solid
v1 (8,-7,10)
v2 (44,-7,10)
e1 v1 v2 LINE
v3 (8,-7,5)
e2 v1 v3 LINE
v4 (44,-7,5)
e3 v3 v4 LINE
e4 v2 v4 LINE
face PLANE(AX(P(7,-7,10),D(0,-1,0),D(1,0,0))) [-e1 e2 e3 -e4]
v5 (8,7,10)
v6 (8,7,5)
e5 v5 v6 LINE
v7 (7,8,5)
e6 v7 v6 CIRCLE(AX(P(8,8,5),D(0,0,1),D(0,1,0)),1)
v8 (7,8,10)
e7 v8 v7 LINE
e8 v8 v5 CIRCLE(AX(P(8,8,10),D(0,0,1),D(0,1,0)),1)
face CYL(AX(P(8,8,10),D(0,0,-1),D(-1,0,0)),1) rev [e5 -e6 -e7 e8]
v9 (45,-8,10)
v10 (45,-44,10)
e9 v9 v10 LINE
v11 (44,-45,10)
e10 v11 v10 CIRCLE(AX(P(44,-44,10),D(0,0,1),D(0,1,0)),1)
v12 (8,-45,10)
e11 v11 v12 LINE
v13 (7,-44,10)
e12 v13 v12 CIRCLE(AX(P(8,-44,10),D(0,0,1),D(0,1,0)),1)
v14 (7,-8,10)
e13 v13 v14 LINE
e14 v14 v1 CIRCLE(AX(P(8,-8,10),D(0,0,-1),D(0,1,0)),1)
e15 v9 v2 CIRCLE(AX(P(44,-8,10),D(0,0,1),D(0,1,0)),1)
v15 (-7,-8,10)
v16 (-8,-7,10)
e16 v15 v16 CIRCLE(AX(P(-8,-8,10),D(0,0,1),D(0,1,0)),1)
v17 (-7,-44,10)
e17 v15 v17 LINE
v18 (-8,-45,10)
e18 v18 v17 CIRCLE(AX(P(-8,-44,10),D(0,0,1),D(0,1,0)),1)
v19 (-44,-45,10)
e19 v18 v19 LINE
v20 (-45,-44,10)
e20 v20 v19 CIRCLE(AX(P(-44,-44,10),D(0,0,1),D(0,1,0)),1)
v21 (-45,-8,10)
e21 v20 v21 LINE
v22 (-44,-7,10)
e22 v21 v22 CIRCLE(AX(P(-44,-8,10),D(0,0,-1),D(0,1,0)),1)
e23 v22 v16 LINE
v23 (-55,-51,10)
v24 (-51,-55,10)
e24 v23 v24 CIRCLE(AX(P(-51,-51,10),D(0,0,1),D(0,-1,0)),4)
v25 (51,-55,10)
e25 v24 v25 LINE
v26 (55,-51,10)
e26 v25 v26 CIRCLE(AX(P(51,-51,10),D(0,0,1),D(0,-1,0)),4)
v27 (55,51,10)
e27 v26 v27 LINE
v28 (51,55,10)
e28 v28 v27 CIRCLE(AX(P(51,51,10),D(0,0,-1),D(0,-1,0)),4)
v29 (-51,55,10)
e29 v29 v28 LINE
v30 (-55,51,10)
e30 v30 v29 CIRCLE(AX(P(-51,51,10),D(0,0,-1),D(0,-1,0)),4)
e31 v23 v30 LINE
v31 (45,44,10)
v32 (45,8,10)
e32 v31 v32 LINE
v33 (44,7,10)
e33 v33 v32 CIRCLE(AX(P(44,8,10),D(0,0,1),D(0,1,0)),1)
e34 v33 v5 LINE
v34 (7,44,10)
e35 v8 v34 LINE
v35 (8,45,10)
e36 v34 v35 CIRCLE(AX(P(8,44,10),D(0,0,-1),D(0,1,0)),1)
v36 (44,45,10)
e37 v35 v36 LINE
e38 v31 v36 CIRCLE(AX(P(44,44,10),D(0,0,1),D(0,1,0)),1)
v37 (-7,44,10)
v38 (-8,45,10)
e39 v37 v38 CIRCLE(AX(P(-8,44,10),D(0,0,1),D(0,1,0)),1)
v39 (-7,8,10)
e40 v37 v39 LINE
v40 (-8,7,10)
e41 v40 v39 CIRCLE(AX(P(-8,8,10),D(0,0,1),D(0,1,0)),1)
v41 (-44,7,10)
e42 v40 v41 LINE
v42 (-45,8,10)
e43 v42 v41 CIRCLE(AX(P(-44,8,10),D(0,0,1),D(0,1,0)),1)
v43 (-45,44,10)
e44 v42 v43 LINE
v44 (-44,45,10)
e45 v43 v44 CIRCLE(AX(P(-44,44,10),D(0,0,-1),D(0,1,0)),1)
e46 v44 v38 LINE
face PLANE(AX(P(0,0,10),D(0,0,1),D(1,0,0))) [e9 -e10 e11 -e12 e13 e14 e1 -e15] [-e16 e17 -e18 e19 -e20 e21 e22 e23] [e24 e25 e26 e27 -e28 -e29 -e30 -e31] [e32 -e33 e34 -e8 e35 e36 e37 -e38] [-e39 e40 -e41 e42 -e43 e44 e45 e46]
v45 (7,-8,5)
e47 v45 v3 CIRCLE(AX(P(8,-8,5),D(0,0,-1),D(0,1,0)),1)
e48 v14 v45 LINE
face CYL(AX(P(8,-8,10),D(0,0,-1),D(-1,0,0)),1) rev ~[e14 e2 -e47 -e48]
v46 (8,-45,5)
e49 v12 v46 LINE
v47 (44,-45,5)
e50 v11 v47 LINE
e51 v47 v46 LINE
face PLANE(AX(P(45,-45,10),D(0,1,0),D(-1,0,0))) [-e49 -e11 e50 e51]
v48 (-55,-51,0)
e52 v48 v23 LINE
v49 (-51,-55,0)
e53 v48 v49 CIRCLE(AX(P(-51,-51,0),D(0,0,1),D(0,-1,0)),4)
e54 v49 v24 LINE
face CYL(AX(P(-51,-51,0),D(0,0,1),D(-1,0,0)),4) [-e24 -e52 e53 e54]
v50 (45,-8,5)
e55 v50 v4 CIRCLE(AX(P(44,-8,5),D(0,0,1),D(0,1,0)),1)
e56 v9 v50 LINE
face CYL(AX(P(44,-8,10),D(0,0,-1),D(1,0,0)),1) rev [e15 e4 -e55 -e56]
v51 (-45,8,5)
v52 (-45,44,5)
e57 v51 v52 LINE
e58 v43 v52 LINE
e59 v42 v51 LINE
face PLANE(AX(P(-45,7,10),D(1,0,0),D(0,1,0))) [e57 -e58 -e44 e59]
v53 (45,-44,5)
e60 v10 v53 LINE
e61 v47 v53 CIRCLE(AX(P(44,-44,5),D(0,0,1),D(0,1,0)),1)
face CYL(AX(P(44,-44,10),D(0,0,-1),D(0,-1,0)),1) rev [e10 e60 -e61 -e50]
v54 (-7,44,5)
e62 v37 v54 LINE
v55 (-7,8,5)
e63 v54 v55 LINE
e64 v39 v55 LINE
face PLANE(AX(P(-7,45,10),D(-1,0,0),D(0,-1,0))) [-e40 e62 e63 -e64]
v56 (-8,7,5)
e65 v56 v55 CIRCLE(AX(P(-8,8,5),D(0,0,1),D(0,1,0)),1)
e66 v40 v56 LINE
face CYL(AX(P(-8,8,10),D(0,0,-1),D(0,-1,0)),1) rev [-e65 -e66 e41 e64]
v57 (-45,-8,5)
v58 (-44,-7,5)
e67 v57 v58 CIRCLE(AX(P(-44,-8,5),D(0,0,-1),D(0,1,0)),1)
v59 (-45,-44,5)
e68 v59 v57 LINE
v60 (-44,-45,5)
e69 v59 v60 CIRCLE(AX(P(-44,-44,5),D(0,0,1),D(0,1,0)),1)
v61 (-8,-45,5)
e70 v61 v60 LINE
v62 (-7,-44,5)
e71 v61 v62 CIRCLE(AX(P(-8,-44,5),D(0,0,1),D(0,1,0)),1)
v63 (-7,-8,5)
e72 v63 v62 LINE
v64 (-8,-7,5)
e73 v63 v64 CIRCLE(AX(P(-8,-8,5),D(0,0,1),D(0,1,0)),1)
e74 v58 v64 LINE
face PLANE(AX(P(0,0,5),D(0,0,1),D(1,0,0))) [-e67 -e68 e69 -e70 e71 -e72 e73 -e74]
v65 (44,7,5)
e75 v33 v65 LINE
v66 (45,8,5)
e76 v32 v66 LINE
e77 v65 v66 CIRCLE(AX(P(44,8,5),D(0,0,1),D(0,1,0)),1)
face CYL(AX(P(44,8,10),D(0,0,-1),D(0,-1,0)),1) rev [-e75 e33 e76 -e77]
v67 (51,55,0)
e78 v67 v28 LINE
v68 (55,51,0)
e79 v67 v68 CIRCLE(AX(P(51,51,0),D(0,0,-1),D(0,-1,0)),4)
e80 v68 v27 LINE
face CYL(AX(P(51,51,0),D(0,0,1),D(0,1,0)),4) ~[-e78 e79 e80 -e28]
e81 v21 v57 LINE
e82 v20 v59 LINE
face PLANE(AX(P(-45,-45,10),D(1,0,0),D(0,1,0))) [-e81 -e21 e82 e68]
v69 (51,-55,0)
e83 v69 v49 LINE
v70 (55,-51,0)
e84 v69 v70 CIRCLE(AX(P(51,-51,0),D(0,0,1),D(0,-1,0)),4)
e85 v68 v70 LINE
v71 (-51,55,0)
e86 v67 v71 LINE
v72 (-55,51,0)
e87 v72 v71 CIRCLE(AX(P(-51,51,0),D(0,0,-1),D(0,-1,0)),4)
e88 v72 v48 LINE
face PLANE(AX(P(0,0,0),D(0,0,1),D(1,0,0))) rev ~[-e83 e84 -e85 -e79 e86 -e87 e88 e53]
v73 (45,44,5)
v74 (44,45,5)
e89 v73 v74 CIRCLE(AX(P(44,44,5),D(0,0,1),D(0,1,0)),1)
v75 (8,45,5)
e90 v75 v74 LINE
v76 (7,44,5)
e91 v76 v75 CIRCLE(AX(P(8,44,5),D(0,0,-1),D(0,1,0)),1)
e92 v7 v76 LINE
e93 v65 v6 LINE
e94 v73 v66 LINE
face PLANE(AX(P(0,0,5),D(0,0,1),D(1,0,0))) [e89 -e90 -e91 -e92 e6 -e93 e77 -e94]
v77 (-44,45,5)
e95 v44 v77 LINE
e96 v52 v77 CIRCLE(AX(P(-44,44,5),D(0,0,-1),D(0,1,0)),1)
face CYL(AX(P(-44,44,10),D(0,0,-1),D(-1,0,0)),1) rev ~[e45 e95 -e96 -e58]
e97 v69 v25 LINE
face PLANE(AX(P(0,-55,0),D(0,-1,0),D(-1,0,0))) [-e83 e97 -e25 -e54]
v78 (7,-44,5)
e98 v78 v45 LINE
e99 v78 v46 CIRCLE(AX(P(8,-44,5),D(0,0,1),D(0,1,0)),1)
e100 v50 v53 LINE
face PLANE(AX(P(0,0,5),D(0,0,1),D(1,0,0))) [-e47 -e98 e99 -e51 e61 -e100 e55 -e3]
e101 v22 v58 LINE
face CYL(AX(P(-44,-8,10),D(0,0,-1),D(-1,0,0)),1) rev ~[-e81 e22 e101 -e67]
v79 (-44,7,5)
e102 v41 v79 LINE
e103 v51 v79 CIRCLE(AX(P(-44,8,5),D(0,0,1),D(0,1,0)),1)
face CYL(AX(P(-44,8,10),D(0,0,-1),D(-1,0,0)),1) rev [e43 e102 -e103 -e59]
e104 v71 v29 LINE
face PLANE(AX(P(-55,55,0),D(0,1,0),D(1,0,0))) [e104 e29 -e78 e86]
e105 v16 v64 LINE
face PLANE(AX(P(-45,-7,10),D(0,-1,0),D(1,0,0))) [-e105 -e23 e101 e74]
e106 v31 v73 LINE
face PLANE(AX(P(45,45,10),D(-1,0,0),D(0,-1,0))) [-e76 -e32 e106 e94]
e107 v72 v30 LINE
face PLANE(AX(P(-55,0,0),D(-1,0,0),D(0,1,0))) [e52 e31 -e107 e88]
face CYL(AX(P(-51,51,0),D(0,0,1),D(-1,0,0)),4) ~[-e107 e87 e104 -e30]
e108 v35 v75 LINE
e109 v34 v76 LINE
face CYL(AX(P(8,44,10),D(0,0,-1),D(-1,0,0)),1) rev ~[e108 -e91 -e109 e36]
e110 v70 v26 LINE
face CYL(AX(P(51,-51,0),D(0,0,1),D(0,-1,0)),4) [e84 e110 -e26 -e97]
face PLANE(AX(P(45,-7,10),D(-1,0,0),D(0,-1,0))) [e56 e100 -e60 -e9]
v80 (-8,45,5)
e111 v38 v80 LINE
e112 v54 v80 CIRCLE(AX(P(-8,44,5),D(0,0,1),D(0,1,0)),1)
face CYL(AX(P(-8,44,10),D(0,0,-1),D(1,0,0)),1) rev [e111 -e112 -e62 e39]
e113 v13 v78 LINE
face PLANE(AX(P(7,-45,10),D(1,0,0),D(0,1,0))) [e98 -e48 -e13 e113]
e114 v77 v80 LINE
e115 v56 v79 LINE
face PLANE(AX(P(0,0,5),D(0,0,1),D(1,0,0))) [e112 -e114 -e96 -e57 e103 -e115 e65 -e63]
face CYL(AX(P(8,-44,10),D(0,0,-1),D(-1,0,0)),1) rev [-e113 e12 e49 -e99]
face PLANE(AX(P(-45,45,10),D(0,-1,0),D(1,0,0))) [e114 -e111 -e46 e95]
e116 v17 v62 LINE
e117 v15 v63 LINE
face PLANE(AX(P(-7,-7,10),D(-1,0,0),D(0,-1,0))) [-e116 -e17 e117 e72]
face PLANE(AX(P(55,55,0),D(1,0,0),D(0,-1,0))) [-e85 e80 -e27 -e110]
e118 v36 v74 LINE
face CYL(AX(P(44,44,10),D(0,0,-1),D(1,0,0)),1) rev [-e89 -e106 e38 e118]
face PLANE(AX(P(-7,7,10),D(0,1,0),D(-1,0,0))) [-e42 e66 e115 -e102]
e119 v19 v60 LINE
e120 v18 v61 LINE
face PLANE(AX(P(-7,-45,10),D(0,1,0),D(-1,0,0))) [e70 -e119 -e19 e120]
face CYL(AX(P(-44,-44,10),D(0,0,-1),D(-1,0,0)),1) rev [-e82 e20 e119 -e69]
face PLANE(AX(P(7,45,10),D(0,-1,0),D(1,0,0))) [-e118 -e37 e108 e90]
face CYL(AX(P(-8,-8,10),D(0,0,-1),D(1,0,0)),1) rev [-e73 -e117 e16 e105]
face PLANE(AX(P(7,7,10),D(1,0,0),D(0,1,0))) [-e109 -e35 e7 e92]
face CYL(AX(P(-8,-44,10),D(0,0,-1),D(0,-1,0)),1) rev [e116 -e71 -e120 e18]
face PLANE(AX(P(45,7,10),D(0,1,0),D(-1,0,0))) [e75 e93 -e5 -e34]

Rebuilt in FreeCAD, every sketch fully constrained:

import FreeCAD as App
import Part
import Sketcher

V = App.Vector
Q = App.Units.Quantity


def edges_at(feature, points):
    """Names of the edges that pass closest to the given points."""
    edges = feature.Shape.Edges
    near = lambda p: min(range(len(edges)), key=lambda i: edges[i].distToShape(Part.Vertex(*p))[0])
    return sorted({f"Edge{near(p) + 1}" for p in points})

doc = App.newDocument("Part")
body = doc.addObject("PartDesign::Body", "Body")

sketch1 = body.newObject("Sketcher::SketchObject", "Sketch")
sketch1.AttachmentSupport = (doc.getObject("XY_Plane"), [""])
sketch1.MapMode = "FlatFace"
sketch1.addGeometry(Part.LineSegment(V(-55, 55, 0), V(-55, -55, 0)), False)
sketch1.addGeometry(Part.LineSegment(V(-55, -55, 0), V(55, -55, 0)), False)
sketch1.addGeometry(Part.LineSegment(V(55, -55, 0), V(55, 55, 0)), False)
sketch1.addGeometry(Part.LineSegment(V(55, 55, 0), V(-55, 55, 0)), False)
sketch1.addConstraint(Sketcher.Constraint("Coincident", 0, 2, 1, 1))
sketch1.addConstraint(Sketcher.Constraint("Coincident", 1, 2, 2, 1))
sketch1.addConstraint(Sketcher.Constraint("Coincident", 2, 2, 3, 1))
sketch1.addConstraint(Sketcher.Constraint("Coincident", 3, 2, 0, 1))
sketch1.addConstraint(Sketcher.Constraint("Vertical", 0))
sketch1.addConstraint(Sketcher.Constraint("Horizontal", 1))
sketch1.addConstraint(Sketcher.Constraint("Vertical", 2))
sketch1.addConstraint(Sketcher.Constraint("Horizontal", 3))
sketch1.addConstraint(Sketcher.Constraint("Symmetric", 0, 2, 2, 2, -1, 1))
sketch1.addConstraint(Sketcher.Constraint("Equal", 3, 0))
sketch1.addConstraint(Sketcher.Constraint("DistanceX", 1, 1, 1, 2, Q("110 mm")))
pad1 = body.newObject("PartDesign::Pad", "Pad")
pad1.Profile = sketch1
pad1.Length = 10

sketch2 = body.newObject("Sketcher::SketchObject", "Sketch001")
sketch2.AttachmentSupport = (doc.getObject("XY_Plane"), [""])
sketch2.MapMode = "FlatFace"
sketch2.AttachmentOffset = App.Placement(V(0, 0, 10), App.Rotation())
sketch2.addGeometry(Part.LineSegment(V(-7, 45, 0), V(-45, 45, 0)), False)
sketch2.addGeometry(Part.LineSegment(V(-45, 45, 0), V(-45, 7, 0)), False)
sketch2.addGeometry(Part.LineSegment(V(-45, 7, 0), V(-7, 7, 0)), False)
sketch2.addGeometry(Part.LineSegment(V(-7, 7, 0), V(-7, 45, 0)), False)
sketch2.addGeometry(Part.LineSegment(V(45, 45, 0), V(7, 45, 0)), False)
sketch2.addGeometry(Part.LineSegment(V(7, 45, 0), V(7, 7, 0)), False)
sketch2.addGeometry(Part.LineSegment(V(7, 7, 0), V(45, 7, 0)), False)
sketch2.addGeometry(Part.LineSegment(V(45, 7, 0), V(45, 45, 0)), False)
sketch2.addGeometry(Part.LineSegment(V(-7, -7, 0), V(-45, -7, 0)), False)
sketch2.addGeometry(Part.LineSegment(V(-45, -7, 0), V(-45, -45, 0)), False)
sketch2.addGeometry(Part.LineSegment(V(-45, -45, 0), V(-7, -45, 0)), False)
sketch2.addGeometry(Part.LineSegment(V(-7, -45, 0), V(-7, -7, 0)), False)
sketch2.addGeometry(Part.LineSegment(V(45, -7, 0), V(7, -7, 0)), False)
sketch2.addGeometry(Part.LineSegment(V(7, -7, 0), V(7, -45, 0)), False)
sketch2.addGeometry(Part.LineSegment(V(7, -45, 0), V(45, -45, 0)), False)
sketch2.addGeometry(Part.LineSegment(V(45, -45, 0), V(45, -7, 0)), False)
sketch2.addConstraint(Sketcher.Constraint("Coincident", 0, 2, 1, 1))
sketch2.addConstraint(Sketcher.Constraint("Coincident", 1, 2, 2, 1))
sketch2.addConstraint(Sketcher.Constraint("Coincident", 2, 2, 3, 1))
sketch2.addConstraint(Sketcher.Constraint("Coincident", 3, 2, 0, 1))
sketch2.addConstraint(Sketcher.Constraint("Coincident", 4, 2, 5, 1))
sketch2.addConstraint(Sketcher.Constraint("Coincident", 5, 2, 6, 1))
sketch2.addConstraint(Sketcher.Constraint("Coincident", 6, 2, 7, 1))
sketch2.addConstraint(Sketcher.Constraint("Coincident", 7, 2, 4, 1))
sketch2.addConstraint(Sketcher.Constraint("Coincident", 8, 2, 9, 1))
sketch2.addConstraint(Sketcher.Constraint("Coincident", 9, 2, 10, 1))
sketch2.addConstraint(Sketcher.Constraint("Coincident", 10, 2, 11, 1))
sketch2.addConstraint(Sketcher.Constraint("Coincident", 11, 2, 8, 1))
sketch2.addConstraint(Sketcher.Constraint("Coincident", 12, 2, 13, 1))
sketch2.addConstraint(Sketcher.Constraint("Coincident", 13, 2, 14, 1))
sketch2.addConstraint(Sketcher.Constraint("Coincident", 14, 2, 15, 1))
sketch2.addConstraint(Sketcher.Constraint("Coincident", 15, 2, 12, 1))
sketch2.addConstraint(Sketcher.Constraint("Horizontal", 0))
sketch2.addConstraint(Sketcher.Constraint("Vertical", 1))
sketch2.addConstraint(Sketcher.Constraint("Horizontal", 2))
sketch2.addConstraint(Sketcher.Constraint("Vertical", 3))
sketch2.addConstraint(Sketcher.Constraint("Horizontal", 4))
sketch2.addConstraint(Sketcher.Constraint("Vertical", 5))
sketch2.addConstraint(Sketcher.Constraint("Horizontal", 6))
sketch2.addConstraint(Sketcher.Constraint("Vertical", 7))
sketch2.addConstraint(Sketcher.Constraint("Horizontal", 8))
sketch2.addConstraint(Sketcher.Constraint("Vertical", 9))
sketch2.addConstraint(Sketcher.Constraint("Horizontal", 10))
sketch2.addConstraint(Sketcher.Constraint("Vertical", 11))
sketch2.addConstraint(Sketcher.Constraint("Horizontal", 12))
sketch2.addConstraint(Sketcher.Constraint("Vertical", 13))
sketch2.addConstraint(Sketcher.Constraint("Horizontal", 14))
sketch2.addConstraint(Sketcher.Constraint("Vertical", 15))
sketch2.addConstraint(Sketcher.Constraint("Symmetric", 6, 2, 8, 2, -1, 1))
sketch2.addConstraint(Sketcher.Constraint("Symmetric", 4, 2, 10, 2, -1, 1))
sketch2.addConstraint(Sketcher.Constraint("Symmetric", 2, 2, 12, 2, -1, 1))
sketch2.addConstraint(Sketcher.Constraint("Symmetric", 0, 2, 14, 2, -1, 1))
sketch2.addConstraint(Sketcher.Constraint("Symmetric", 3, 2, 4, 2, -2))
sketch2.addConstraint(Sketcher.Constraint("Symmetric", 1, 2, 6, 2, -2))
sketch2.addConstraint(Sketcher.Constraint("Equal", 14, 1))
sketch2.addConstraint(Sketcher.Constraint("DistanceX", 0, 2, 0, 1, Q("38 mm")))
sketch2.addConstraint(Sketcher.Constraint("DistanceX", 0, 2, 4, 2, Q("52 mm")))
sketch2.addConstraint(Sketcher.Constraint("DistanceY", 8, 2, 0, 2, Q("52 mm")))
pocket1 = body.newObject("PartDesign::Pocket", "Pocket")
pocket1.Profile = sketch2
pocket1.Length = 5
doc.recompute()

fillet = body.newObject("PartDesign::Fillet", "Fillet")
fillet.Base = (pocket1, edges_at(pocket1, [
    (-45, 45, 7.5),
    (7, 45, 7.5),
    (-45, -7, 7.5),
    (7, -7, 7.5),
    (45, -45, 7.5),
    (-7, -45, 7.5),
    (45, 7, 7.5),
    (-7, 7, 7.5),
    (45, 45, 7.5),
    (-7, 45, 7.5),
    (45, -7, 7.5),
    (-7, -7, 7.5),
    (-45, -45, 7.5),
    (7, -45, 7.5),
    (7, 7, 7.5),
    (-45, 7, 7.5),
]))
fillet.Radius = 1
doc.recompute()

fillet2 = body.newObject("PartDesign::Fillet", "Fillet001")
fillet2.Base = (fillet, edges_at(fillet, [
    (-55, -55, 5),
    (55, -55, 5),
    (55, 55, 5),
    (-55, 55, 5),
]))
fillet2.Radius = 4

doc.recompute()
